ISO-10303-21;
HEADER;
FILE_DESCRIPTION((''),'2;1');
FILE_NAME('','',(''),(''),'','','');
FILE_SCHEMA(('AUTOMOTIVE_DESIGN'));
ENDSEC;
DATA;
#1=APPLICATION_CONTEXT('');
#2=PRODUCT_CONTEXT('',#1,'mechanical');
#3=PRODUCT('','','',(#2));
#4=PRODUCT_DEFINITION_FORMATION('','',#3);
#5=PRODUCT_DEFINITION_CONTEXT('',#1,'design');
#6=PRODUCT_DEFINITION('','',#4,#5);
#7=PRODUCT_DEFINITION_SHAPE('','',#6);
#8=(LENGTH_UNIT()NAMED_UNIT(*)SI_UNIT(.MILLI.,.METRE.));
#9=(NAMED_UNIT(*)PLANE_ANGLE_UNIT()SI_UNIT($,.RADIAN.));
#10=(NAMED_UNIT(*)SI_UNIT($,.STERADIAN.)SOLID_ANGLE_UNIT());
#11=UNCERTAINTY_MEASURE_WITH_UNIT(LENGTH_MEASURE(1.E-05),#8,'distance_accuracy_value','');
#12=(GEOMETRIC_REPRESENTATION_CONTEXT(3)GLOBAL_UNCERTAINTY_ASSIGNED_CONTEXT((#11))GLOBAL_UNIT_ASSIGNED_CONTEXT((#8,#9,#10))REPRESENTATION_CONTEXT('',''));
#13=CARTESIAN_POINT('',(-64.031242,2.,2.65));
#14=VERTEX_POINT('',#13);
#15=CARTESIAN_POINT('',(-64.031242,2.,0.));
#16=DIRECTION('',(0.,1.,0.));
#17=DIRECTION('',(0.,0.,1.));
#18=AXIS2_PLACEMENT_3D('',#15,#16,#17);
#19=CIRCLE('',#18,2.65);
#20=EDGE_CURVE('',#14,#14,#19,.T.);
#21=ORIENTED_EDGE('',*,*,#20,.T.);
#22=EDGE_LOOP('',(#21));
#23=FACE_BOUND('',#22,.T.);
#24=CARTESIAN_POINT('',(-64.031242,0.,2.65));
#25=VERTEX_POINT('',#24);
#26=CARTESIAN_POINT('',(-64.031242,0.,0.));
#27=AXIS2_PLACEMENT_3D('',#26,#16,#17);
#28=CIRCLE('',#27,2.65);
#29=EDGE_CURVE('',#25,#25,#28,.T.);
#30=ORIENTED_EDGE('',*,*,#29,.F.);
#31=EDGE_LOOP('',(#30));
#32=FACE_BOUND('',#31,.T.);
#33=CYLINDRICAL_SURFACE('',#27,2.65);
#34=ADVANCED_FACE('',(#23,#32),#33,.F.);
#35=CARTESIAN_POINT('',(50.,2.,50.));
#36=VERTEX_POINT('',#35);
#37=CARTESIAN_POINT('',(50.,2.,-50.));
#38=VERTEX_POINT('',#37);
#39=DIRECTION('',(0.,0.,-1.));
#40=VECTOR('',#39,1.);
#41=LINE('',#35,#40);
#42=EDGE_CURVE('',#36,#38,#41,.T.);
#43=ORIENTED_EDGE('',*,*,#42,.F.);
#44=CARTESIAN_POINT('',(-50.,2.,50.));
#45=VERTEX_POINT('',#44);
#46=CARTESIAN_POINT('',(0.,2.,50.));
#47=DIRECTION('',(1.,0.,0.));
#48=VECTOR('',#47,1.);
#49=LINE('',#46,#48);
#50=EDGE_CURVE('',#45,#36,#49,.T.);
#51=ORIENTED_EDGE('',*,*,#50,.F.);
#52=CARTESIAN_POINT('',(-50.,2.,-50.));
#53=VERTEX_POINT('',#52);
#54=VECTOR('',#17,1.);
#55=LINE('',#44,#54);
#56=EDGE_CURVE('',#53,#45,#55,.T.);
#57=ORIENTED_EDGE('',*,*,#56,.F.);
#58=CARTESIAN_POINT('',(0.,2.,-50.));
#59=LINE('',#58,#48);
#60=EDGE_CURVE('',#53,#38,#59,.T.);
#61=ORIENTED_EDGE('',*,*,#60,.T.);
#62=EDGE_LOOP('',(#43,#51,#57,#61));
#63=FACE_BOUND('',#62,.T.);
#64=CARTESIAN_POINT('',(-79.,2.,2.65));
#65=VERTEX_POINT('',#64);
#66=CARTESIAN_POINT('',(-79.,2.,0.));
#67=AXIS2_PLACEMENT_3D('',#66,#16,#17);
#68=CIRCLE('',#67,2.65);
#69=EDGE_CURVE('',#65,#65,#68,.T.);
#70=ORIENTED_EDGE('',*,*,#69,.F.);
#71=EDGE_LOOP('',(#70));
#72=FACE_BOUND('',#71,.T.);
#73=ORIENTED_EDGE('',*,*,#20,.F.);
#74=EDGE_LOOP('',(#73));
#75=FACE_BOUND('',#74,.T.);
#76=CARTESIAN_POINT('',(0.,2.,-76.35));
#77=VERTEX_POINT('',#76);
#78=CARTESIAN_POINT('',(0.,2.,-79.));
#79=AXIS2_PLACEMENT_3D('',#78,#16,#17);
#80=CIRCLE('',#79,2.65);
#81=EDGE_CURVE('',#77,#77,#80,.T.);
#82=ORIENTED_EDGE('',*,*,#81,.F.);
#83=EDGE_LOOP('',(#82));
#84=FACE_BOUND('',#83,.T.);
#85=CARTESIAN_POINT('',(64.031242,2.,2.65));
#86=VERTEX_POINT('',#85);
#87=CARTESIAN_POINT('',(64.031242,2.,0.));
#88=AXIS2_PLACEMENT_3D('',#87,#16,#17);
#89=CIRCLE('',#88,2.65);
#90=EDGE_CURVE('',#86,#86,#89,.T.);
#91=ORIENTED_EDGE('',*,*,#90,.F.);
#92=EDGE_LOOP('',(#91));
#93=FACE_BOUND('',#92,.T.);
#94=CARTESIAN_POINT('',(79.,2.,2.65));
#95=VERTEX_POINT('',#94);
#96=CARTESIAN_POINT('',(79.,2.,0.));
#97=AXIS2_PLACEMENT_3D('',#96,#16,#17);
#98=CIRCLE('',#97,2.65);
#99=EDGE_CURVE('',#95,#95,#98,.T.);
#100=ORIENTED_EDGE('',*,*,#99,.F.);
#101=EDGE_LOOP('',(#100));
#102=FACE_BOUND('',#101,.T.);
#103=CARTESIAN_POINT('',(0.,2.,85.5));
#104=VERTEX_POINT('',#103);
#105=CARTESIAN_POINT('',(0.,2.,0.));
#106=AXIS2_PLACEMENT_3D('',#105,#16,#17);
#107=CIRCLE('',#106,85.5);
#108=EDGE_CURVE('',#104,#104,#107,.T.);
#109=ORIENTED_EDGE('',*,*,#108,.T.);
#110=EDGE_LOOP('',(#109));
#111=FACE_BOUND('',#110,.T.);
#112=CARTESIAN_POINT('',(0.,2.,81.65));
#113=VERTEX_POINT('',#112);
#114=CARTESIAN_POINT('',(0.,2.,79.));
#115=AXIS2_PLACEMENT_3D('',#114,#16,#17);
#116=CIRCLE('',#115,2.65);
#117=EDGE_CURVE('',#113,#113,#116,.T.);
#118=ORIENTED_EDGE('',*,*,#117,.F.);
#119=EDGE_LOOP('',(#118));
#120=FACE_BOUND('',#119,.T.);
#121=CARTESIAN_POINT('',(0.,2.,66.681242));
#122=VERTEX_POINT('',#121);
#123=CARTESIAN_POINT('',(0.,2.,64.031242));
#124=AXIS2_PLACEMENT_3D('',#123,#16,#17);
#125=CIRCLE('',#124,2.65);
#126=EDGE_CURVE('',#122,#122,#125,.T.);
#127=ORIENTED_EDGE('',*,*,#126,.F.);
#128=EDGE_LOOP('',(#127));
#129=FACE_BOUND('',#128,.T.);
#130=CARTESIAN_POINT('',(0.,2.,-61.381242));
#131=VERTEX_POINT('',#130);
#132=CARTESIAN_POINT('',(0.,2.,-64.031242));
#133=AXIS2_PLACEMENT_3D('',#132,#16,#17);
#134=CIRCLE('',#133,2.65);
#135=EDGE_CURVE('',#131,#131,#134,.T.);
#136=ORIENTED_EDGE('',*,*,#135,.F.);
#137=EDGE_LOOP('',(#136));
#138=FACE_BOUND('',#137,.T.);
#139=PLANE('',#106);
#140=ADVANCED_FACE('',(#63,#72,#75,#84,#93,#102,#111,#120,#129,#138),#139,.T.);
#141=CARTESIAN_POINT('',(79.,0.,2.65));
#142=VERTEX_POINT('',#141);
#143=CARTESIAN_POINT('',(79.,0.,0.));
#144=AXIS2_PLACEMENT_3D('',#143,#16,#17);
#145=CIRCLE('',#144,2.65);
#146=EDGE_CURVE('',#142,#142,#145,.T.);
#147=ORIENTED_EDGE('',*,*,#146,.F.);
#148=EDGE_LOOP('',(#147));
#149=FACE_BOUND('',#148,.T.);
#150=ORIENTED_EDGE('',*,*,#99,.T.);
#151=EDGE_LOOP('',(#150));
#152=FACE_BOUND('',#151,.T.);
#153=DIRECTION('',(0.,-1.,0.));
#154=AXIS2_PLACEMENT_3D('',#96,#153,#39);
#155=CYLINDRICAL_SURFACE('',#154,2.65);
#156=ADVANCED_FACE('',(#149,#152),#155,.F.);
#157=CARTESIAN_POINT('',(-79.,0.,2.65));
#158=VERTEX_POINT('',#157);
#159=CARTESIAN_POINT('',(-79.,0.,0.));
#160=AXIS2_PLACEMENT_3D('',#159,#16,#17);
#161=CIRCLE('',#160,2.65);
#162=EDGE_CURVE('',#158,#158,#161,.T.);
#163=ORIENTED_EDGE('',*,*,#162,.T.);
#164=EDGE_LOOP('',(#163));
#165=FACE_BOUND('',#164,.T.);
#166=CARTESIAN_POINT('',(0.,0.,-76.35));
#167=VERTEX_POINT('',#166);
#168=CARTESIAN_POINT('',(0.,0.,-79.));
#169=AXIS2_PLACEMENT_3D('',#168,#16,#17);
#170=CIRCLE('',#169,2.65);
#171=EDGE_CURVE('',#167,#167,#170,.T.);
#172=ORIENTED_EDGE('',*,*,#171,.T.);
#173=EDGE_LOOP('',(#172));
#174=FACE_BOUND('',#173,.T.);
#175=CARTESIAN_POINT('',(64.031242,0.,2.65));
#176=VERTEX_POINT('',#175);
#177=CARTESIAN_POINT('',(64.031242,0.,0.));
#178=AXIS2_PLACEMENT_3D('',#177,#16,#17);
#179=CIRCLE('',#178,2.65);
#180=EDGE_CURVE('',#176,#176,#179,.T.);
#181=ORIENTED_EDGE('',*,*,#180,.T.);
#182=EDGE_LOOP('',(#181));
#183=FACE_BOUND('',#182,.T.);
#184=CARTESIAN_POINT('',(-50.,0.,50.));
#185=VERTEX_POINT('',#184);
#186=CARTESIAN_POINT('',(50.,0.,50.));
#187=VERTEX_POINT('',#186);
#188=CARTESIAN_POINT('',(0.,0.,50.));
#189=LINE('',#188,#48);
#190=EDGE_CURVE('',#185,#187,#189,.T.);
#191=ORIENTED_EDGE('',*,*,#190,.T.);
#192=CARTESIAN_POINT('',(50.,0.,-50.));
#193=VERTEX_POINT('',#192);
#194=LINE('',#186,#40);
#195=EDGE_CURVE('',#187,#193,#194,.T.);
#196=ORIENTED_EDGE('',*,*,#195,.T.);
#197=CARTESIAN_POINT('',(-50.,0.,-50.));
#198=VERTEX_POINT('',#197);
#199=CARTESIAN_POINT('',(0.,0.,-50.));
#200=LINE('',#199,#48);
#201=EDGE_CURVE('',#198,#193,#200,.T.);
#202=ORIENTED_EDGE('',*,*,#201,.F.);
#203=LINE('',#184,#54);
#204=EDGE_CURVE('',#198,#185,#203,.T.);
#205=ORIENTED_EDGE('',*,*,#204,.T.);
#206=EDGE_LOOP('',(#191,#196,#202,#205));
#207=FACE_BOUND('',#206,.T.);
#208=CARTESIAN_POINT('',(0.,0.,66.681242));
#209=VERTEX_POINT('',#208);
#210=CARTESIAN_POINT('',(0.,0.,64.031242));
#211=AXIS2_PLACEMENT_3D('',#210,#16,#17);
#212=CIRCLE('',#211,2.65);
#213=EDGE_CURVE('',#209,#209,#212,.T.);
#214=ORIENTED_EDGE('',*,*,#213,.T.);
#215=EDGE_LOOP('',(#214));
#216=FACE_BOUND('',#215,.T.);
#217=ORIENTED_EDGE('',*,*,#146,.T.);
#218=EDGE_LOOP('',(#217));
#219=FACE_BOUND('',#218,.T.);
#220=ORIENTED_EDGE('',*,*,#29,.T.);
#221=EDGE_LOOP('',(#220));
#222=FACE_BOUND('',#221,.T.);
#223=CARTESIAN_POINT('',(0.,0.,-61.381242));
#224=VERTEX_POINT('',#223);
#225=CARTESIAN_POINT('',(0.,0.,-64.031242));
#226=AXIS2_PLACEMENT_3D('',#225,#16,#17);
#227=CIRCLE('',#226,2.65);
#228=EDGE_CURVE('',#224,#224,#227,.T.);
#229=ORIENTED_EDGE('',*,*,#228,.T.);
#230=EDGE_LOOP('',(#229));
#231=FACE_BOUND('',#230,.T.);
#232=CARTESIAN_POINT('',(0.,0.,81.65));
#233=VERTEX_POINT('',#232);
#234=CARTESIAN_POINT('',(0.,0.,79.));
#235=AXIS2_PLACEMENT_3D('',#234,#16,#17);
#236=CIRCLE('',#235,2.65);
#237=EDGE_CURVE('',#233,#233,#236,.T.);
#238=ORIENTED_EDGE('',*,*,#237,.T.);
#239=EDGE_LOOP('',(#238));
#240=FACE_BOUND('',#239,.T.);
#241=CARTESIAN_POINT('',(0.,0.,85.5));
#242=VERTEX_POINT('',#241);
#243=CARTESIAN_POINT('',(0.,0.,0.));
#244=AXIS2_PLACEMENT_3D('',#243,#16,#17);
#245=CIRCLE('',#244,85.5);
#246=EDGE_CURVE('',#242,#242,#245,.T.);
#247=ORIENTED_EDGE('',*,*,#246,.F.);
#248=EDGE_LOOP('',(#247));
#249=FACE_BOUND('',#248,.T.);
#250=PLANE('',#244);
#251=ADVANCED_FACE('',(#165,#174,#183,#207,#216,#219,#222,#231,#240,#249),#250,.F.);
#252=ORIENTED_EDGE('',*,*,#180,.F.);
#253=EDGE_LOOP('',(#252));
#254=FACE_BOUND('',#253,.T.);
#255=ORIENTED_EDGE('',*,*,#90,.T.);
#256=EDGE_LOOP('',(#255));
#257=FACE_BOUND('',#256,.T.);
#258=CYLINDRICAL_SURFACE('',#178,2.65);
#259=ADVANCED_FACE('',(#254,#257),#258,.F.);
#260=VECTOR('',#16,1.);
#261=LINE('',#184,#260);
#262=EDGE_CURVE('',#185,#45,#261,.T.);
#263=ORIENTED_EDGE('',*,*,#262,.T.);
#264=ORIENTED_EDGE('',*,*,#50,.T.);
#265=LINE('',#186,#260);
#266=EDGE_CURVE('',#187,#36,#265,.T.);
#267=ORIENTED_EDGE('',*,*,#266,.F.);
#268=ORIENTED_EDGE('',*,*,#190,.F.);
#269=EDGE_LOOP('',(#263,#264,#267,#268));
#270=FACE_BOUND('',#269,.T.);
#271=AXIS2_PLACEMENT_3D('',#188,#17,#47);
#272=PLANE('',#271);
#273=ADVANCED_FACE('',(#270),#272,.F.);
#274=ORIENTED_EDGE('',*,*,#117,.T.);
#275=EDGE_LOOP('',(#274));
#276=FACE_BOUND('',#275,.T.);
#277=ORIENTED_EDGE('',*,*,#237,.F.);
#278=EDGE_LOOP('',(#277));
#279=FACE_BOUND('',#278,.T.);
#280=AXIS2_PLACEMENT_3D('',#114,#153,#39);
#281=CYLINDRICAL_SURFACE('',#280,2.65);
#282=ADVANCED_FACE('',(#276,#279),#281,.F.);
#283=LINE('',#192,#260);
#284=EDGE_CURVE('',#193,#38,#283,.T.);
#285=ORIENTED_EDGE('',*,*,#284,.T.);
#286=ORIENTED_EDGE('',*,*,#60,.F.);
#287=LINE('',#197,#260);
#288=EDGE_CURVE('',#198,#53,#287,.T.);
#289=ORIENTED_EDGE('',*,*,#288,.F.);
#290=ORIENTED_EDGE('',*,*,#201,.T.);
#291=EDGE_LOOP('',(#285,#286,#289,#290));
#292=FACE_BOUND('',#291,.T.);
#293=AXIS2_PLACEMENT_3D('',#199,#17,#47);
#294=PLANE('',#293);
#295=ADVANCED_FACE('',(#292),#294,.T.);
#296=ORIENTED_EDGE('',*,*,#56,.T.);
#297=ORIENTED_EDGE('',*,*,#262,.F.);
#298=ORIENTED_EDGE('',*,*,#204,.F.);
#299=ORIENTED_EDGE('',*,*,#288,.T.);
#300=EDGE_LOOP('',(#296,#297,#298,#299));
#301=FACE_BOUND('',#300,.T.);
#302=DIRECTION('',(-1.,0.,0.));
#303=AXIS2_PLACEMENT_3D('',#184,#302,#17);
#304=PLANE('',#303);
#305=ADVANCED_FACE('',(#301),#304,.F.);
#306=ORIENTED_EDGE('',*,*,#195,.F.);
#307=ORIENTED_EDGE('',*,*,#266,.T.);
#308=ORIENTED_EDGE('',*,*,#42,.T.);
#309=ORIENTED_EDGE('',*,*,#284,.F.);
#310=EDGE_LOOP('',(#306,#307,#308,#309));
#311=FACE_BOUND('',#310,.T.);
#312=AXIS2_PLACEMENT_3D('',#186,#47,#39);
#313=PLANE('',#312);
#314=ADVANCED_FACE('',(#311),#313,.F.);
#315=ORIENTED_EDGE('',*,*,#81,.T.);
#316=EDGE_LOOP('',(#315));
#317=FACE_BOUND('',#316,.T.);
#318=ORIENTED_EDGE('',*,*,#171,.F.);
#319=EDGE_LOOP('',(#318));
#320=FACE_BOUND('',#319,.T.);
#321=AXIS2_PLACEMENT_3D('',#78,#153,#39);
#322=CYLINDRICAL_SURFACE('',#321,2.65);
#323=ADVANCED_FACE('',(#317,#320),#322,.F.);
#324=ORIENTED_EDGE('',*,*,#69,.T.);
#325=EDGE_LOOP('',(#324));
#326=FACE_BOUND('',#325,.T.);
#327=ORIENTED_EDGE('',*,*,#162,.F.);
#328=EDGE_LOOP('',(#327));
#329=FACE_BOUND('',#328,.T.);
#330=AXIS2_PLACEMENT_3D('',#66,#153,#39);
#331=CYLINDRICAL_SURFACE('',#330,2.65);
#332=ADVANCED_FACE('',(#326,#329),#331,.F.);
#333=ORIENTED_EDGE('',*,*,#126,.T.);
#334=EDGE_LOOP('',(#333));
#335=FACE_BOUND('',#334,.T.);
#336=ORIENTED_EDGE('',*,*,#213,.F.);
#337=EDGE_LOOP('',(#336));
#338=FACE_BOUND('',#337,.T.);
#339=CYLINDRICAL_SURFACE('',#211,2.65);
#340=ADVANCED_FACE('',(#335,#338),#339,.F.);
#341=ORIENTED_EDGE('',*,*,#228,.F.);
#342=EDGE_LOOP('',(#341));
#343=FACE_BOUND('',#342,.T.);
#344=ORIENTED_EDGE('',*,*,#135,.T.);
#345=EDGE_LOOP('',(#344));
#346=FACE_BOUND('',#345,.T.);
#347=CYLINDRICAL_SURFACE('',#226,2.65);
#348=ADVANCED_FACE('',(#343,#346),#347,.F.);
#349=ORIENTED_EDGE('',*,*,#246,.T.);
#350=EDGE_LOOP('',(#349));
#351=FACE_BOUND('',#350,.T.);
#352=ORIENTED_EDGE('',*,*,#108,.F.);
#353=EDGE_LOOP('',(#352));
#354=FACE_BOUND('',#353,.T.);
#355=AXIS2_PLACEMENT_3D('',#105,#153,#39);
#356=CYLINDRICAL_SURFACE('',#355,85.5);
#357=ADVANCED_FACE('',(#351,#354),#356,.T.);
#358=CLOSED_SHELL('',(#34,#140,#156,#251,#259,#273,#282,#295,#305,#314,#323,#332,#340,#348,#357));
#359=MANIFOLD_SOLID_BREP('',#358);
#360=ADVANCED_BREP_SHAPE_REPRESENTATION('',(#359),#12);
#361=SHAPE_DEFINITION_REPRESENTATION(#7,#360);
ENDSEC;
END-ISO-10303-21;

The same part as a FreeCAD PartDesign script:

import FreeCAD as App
import Part
import Sketcher
Q = App.Units.Quantity

doc = App.newDocument("Part")
body = doc.addObject("PartDesign::Body", "Body")

# Sketch on XZ plane
sketch1 = body.newObject("Sketcher::SketchObject", "Sketch")
sketch1.AttachmentSupport = (doc.getObject("XZ_Plane"), [""])
sketch1.MapMode = "FlatFace"
sketch1.addGeometry([
    Part.Circle(App.Vector(0, 0, 0), App.Vector(0, 0, 1), 85.5),  # 0
    Part.Circle(App.Vector(0, -79, 0), App.Vector(0, 0, 1), 2.6),  # 1
    Part.Circle(App.Vector(-79, 0, 0), App.Vector(0, 0, 1), 2.6),  # 2
    Part.Circle(App.Vector(79, 0, 0), App.Vector(0, 0, 1), 2.6),  # 3
    Part.Circle(App.Vector(0, 79, 0), App.Vector(0, 0, 1), 2.6),  # 4
], False)
sketch1.addConstraint([
    Sketcher.Constraint("Coincident", 0, 3, -1, 1),
    Sketcher.Constraint("Equal", 1, 2),
    Sketcher.Constraint("Equal", 2, 3),
    Sketcher.Constraint("Equal", 3, 4),
    Sketcher.Constraint("Symmetric", 2, 3, 3, 3, -1, 1),
    Sketcher.Constraint("Symmetric", 1, 3, 4, 3, -1, 1),
    Sketcher.Constraint("PointOnObject", 1, 3, -2),
    Sketcher.Constraint("PointOnObject", 2, 3, -1),
    Sketcher.Constraint("Diameter", 0, Q("171 mm")),
    Sketcher.Constraint("Diameter", 1, Q("5.3 mm")),
    Sketcher.Constraint("DistanceY", 1, 3, -1, 1, Q("79 mm")),
    Sketcher.Constraint("DistanceX", 2, 3, -1, 1, Q("79 mm")),
])
pad1 = body.newObject("PartDesign::Pad", "Pad")
pad1.Profile = sketch1
pad1.Length = 2
pad1.Reversed = True

# Sketch on XZ plane
sketch2 = body.newObject("Sketcher::SketchObject", "Sketch001")
sketch2.AttachmentSupport = (doc.getObject("XZ_Plane"), [""])
sketch2.MapMode = "FlatFace"
sketch2.AttachmentOffset = App.Placement(App.Vector(0, 0, -2), App.Rotation())
sketch2.addGeometry([
    Part.LineSegment(App.Vector(-40, -50, 0), App.Vector(-40, 50, 0)),
    Part.LineSegment(App.Vector(-40, 50, 0), App.Vector(40, 50, 0)),
    Part.LineSegment(App.Vector(40, 50, 0), App.Vector(40, -50, 0)),
    Part.LineSegment(App.Vector(40, -50, 0), App.Vector(-40, -50, 0)),
], False)
sketch2.addConstraint([
    Sketcher.Constraint("Coincident", 0, 2, 1, 1),
    Sketcher.Constraint("Coincident", 1, 2, 2, 1),
    Sketcher.Constraint("Coincident", 2, 2, 3, 1),
    Sketcher.Constraint("Coincident", 3, 2, 0, 1),
    Sketcher.Constraint("Vertical", 0),
    Sketcher.Constraint("Horizontal", 1),
    Sketcher.Constraint("Vertical", 2),
    Sketcher.Constraint("Horizontal", 3),
    Sketcher.Constraint("Symmetric", 0, 2, 2, 2, -1, 1),
    Sketcher.Constraint("DistanceX", 1, 1, 1, 2, Q("80 mm")),
    Sketcher.Constraint("DistanceY", 0, 1, 0, 2, Q("100 mm")),
])
pocket1 = body.newObject("PartDesign::Pocket", "Pocket")
pocket1.Profile = sketch2
pocket1.Length = 2
pocket1.Reversed = True

# Sketch on XZ plane
sketch3 = body.newObject("Sketcher::SketchObject", "Sketch002")
sketch3.AttachmentSupport = (doc.getObject("XZ_Plane"), [""])
sketch3.MapMode = "FlatFace"
sketch3.AttachmentOffset = App.Placement(App.Vector(0, 0, -2), App.Rotation())
sketch3.addGeometry([
    Part.Circle(App.Vector(0, -64, 0), App.Vector(0, 0, 1), 2.6),
    Part.Circle(App.Vector(64, 0, 0), App.Vector(0, 0, 1), 2.6),
    Part.Circle(App.Vector(0, 64, 0), App.Vector(0, 0, 1), 2.6),
    Part.Circle(App.Vector(-64, 0, 0), App.Vector(0, 0, 1), 2.6),
], False)
sketch3.addConstraint([
    Sketcher.Constraint("Equal", 0, 1),
    Sketcher.Constraint("Equal", 1, 2),
    Sketcher.Constraint("Equal", 2, 3),
    Sketcher.Constraint("Symmetric", 0, 3, 2, 3, -1, 1),
    Sketcher.Constraint("Symmetric", 1, 3, 3, 3, -1, 1),
    Sketcher.Constraint("PointOnObject", 0, 3, -2),
    Sketcher.Constraint("PointOnObject", 1, 3, -1),
    Sketcher.Constraint("Diameter", 0, Q("5.3 mm")),
    Sketcher.Constraint("DistanceY", 0, 3, -1, 1, Q("64.031242 mm")),
    Sketcher.Constraint("DistanceX", -1, 1, 1, 3, Q("64.031242 mm")),
])
pocket2 = body.newObject("PartDesign::Pocket", "Pocket001")
pocket2.Profile = sketch3
pocket2.Length = 2
pocket2.Reversed = True

# Sketch on XZ plane
sketch4 = body.newObject("Sketcher::SketchObject", "Sketch003")
sketch4.AttachmentSupport = (doc.getObject("XZ_Plane"), [""])
sketch4.MapMode = "FlatFace"
sketch4.AttachmentOffset = App.Placement(App.Vector(0, 0, -2), App.Rotation())
sketch4.addGeometry([
    Part.LineSegment(App.Vector(-50, -50, 0), App.Vector(-50, 50, 0)),
    Part.LineSegment(App.Vector(-50, 50, 0), App.Vector(50, 50, 0)),
    Part.LineSegment(App.Vector(50, 50, 0), App.Vector(50, -50, 0)),
    Part.LineSegment(App.Vector(50, -50, 0), App.Vector(-50, -50, 0)),
], False)
sketch4.addConstraint([
    Sketcher.Constraint("Coincident", 0, 2, 1, 1),
    Sketcher.Constraint("Coincident", 1, 2, 2, 1),
    Sketcher.Constraint("Coincident", 2, 2, 3, 1),
    Sketcher.Constraint("Coincident", 3, 2, 0, 1),
    Sketcher.Constraint("Vertical", 0),
    Sketcher.Constraint("Horizontal", 1),
    Sketcher.Constraint("Vertical", 2),
    Sketcher.Constraint("Horizontal", 3),
    Sketcher.Constraint("Symmetric", 0, 2, 2, 2, -1, 1),
    Sketcher.Constraint("Equal", 3, 0),
    Sketcher.Constraint("DistanceX", 1, 1, 1, 2, Q("100 mm")),
])
pocket3 = body.newObject("PartDesign::Pocket", "Pocket002")
pocket3.Profile = sketch4
pocket3.Length = 2
pocket3.Reversed = True

doc.recompute()
